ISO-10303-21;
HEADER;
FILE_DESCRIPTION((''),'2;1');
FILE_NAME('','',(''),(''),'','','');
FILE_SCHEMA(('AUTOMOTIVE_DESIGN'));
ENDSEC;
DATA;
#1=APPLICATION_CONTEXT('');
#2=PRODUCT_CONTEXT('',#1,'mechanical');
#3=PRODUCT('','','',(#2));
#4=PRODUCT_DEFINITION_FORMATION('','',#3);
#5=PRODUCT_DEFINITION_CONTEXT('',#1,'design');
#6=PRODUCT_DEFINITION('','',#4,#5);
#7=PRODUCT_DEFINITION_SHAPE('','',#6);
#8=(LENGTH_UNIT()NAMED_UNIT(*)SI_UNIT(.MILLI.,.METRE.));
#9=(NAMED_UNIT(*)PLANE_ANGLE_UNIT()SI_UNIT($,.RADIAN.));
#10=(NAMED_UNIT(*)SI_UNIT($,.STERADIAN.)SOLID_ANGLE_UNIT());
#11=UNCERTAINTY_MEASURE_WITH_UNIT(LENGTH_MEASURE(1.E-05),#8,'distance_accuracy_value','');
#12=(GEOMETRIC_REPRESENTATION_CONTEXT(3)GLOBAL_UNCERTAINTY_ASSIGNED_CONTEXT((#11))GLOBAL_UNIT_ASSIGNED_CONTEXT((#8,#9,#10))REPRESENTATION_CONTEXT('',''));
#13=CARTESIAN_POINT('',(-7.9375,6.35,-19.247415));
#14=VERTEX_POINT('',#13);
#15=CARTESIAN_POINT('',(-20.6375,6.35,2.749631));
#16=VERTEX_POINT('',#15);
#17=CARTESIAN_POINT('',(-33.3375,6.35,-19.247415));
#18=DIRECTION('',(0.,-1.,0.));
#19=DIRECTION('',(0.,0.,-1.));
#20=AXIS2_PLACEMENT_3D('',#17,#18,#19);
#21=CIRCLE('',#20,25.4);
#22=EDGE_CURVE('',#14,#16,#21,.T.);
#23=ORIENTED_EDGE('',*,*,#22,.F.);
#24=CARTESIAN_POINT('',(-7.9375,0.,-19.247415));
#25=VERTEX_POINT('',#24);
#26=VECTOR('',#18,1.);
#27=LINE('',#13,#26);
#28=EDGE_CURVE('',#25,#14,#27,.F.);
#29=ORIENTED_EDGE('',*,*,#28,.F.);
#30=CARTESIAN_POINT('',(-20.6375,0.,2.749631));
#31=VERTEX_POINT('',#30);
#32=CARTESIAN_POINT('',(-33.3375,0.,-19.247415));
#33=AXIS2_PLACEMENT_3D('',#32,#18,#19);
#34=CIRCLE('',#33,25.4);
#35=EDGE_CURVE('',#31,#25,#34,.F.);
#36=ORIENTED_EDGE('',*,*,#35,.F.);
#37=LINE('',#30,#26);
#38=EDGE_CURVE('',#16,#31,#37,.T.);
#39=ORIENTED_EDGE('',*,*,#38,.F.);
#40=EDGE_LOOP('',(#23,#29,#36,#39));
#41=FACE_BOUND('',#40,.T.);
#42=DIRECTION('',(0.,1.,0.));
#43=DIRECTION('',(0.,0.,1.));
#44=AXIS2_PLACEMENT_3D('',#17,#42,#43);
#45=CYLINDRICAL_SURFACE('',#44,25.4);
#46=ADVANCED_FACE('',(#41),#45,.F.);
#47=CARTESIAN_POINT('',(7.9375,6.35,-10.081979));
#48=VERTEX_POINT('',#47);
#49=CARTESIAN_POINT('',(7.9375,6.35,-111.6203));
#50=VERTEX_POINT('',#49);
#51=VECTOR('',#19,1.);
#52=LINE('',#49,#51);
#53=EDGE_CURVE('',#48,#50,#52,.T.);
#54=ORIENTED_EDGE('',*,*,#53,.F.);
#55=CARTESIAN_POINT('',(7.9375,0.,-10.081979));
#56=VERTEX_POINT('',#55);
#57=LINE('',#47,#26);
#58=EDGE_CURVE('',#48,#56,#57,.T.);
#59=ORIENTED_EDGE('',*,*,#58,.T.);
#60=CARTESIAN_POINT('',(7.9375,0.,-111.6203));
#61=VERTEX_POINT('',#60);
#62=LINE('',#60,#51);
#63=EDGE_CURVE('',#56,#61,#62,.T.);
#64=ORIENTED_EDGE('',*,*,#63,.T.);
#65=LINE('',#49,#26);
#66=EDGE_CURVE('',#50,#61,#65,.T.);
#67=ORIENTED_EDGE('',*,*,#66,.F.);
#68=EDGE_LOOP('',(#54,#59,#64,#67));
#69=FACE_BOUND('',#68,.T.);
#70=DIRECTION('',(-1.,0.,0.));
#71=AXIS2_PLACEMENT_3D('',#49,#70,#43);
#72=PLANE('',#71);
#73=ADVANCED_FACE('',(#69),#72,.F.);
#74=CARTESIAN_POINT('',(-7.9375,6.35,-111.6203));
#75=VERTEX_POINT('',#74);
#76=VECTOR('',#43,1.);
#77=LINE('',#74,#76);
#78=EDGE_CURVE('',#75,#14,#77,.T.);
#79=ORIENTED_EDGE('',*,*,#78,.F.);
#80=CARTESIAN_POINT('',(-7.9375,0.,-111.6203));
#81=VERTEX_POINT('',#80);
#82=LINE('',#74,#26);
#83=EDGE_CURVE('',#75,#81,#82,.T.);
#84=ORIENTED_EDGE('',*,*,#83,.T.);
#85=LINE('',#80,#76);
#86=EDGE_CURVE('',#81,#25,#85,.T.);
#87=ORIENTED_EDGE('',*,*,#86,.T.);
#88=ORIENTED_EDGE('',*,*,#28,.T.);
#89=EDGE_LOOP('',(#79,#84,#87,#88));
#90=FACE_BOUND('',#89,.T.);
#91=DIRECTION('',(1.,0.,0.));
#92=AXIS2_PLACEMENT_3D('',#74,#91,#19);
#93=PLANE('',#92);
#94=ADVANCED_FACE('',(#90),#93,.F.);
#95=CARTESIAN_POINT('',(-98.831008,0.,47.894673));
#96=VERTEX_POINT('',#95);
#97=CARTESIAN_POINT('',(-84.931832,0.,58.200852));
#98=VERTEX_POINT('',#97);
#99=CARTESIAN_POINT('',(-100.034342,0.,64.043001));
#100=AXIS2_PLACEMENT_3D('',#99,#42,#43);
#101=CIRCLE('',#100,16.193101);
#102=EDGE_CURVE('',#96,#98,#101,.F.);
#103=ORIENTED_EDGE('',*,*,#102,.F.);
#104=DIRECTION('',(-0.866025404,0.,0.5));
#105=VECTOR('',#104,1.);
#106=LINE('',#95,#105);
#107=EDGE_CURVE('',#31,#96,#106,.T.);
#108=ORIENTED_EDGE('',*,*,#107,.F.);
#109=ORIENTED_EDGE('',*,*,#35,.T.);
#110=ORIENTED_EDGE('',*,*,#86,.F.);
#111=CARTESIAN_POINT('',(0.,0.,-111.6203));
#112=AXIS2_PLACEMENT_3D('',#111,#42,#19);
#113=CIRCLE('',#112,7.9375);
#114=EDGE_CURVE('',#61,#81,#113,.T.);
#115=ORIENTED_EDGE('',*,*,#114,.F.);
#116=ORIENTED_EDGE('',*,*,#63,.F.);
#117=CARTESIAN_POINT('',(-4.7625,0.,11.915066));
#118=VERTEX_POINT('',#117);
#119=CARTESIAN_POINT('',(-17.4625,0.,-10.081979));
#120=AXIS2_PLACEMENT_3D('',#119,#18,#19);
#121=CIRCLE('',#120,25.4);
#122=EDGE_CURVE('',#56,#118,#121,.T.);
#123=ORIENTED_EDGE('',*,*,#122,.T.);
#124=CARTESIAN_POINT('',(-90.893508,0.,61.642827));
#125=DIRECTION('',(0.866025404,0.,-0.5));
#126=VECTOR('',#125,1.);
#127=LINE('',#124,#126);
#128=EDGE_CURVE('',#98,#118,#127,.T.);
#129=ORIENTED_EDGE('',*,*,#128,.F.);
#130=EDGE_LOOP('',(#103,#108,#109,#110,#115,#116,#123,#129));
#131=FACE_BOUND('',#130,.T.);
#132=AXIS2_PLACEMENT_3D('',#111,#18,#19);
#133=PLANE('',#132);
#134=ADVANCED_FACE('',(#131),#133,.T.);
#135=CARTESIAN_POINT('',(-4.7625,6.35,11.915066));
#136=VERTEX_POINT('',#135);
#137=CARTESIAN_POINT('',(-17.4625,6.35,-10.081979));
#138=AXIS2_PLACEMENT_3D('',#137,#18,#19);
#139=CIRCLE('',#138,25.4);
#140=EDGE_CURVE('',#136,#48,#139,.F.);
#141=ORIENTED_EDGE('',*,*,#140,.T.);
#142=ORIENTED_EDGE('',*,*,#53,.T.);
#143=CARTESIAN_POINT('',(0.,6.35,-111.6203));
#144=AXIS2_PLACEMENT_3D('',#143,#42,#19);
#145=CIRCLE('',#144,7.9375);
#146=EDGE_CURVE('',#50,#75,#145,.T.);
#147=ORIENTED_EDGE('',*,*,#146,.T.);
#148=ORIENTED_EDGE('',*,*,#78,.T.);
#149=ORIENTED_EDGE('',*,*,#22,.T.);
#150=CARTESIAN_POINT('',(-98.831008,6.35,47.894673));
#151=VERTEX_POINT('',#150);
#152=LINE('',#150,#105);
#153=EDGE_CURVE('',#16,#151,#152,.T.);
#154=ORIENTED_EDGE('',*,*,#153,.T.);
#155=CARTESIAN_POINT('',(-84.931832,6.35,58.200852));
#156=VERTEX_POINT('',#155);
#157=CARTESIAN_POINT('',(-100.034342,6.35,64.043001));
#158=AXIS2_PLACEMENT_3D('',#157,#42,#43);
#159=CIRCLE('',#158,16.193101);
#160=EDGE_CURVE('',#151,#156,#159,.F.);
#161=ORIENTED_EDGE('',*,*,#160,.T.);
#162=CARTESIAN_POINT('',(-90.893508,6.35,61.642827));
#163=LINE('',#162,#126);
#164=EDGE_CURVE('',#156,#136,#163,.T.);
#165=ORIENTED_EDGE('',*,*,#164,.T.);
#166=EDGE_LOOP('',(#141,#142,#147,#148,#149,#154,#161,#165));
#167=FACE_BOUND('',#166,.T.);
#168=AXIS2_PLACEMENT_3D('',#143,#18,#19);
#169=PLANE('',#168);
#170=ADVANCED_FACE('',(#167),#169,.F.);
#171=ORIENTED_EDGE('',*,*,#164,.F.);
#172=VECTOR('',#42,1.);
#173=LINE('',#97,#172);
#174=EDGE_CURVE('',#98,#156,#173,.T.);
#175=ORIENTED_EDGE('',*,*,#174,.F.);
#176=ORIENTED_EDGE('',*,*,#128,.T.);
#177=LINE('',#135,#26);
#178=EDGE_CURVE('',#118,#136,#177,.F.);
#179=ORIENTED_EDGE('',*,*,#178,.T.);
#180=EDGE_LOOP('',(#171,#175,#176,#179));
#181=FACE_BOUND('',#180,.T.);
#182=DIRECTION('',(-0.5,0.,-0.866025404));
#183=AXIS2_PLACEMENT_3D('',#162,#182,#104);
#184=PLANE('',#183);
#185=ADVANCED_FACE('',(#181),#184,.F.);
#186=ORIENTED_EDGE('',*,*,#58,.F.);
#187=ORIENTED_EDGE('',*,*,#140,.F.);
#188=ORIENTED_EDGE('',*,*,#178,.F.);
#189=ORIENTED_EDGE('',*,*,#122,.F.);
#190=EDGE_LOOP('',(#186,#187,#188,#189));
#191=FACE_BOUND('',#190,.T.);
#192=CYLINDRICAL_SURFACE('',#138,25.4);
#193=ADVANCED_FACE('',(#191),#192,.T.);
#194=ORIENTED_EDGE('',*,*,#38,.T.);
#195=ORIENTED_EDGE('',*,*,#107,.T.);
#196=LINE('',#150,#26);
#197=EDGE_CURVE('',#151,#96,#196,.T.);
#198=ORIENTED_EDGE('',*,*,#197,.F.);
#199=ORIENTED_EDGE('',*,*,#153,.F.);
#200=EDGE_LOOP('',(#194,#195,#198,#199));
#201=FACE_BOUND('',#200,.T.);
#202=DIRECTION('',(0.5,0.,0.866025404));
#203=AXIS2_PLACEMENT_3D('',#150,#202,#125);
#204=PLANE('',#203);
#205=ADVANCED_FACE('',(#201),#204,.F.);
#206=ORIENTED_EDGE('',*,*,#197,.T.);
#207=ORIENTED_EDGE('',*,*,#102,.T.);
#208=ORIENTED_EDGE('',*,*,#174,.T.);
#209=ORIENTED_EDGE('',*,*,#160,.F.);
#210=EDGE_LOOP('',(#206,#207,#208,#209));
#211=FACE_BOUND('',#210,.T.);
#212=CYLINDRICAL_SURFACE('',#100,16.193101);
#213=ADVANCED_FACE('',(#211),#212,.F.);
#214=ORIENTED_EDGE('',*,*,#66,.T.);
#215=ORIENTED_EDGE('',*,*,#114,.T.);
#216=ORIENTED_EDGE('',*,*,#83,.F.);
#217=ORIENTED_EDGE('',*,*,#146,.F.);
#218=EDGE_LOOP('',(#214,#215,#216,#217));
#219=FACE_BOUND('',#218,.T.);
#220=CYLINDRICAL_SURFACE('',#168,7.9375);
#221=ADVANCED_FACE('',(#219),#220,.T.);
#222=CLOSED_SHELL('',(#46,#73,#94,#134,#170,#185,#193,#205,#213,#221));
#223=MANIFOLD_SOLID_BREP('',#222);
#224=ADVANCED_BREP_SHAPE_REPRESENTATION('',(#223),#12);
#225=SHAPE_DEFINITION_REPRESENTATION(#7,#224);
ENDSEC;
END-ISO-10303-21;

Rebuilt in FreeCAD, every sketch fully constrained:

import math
import FreeCAD as App
import Part
import Sketcher
Q = App.Units.Quantity


def edges_at(feature, points):
    """Names of the edges that pass closest to the given points."""
    edges = feature.Shape.Edges
    near = lambda p: min(range(len(edges)), key=lambda i: edges[i].distToShape(Part.Vertex(*p))[0])
    return sorted({f"Edge{near(p) + 1}" for p in points})

doc = App.newDocument("Part")
body = doc.addObject("PartDesign::Body", "Body")

sketch1 = body.newObject("Sketcher::SketchObject", "Sketch")
sketch1.AttachmentSupport = (doc.getObject("XZ_Plane"), [""])
sketch1.MapMode = "FlatFace"
sketch1.addGeometry(Part.LineSegment(App.Vector(7.9375, 4.582718, 0), App.Vector(7.9375, -111.6203, 0)), False)
sketch1.addGeometry(Part.ArcOfCircle(Part.Circle(App.Vector(0, -111.6203, 0), App.Vector(0, 0, 1), 7.9375), math.radians(180), math.radians(360)), False)
sketch1.addGeometry(Part.LineSegment(App.Vector(-7.9375, -111.6203, 0), App.Vector(-7.9375, -4.582718, 0)), False)
sketch1.addGeometry(Part.LineSegment(App.Vector(-7.9375, -4.582718, 0), App.Vector(-98.831008, 47.894673, 0)), False)
sketch1.addGeometry(Part.ArcOfCircle(Part.Circle(App.Vector(-94.862258, 54.76875, 0), App.Vector(0, 0, 1), 7.9375), math.radians(60), math.radians(240)), False)
sketch1.addGeometry(Part.LineSegment(App.Vector(-90.893508, 61.642827, 0), App.Vector(7.9375, 4.582718, 0)), False)
sketch1.addConstraint(Sketcher.Constraint("Tangent", 0, 2, 1, 2))
sketch1.addConstraint(Sketcher.Constraint("Tangent", 1, 1, 2, 1))
sketch1.addConstraint(Sketcher.Constraint("Coincident", 2, 2, 3, 1))
sketch1.addConstraint(Sketcher.Constraint("Tangent", 3, 2, 4, 2))
sketch1.addConstraint(Sketcher.Constraint("Tangent", 4, 1, 5, 1))
sketch1.addConstraint(Sketcher.Constraint("Coincident", 5, 2, 0, 1))
sketch1.addConstraint(Sketcher.Constraint("Vertical", 0))
sketch1.addConstraint(Sketcher.Constraint("Vertical", 2))
sketch1.addConstraint(Sketcher.Constraint("Equal", 1, 4))
sketch1.addConstraint(Sketcher.Constraint("Symmetric", 2, 2, 5, 2, -1, 1))
sketch1.addConstraint(Sketcher.Constraint("Parallel", 3, 5))
sketch1.addConstraint(Sketcher.Constraint("Angle", 3, Q("150 deg")))
sketch1.addConstraint(Sketcher.Constraint("Radius", 1, Q("0.3125 in")))
sketch1.addConstraint(Sketcher.Constraint("DistanceY", -1, 1, 4, 3, Q("2.15625 in")))
sketch1.addConstraint(Sketcher.Constraint("DistanceY", 1, 3, -1, 1, Q("4.3945 in")))
pad1 = body.newObject("PartDesign::Pad", "Pad")
pad1.Profile = sketch1
pad1.Length = Q("0.25 in")
pad1.Reversed = True

sketch2 = body.newObject("Sketcher::SketchObject", "Sketch001")
sketch2.AttachmentSupport = (doc.getObject("XZ_Plane"), [""])
sketch2.MapMode = "FlatFace"
sketch2.AttachmentOffset = App.Placement(App.Vector(0, 0, -0.25 * 25.4), App.Rotation())
sketch2.addGeometry(Part.LineSegment(App.Vector(-90.893508, 61.642827, 0), App.Vector(-84.931832, 58.200852, 0)), False)
sketch2.addGeometry(Part.ArcOfCircle(Part.Circle(App.Vector(-100.034342, 64.043001, 0), App.Vector(0, 0, 1), 16.193101), math.radians(-85.738334), math.radians(-21.148116)), False)
sketch2.addGeometry(Part.ArcOfCircle(Part.Circle(App.Vector(-94.862258, 54.76875, 0), App.Vector(0, 0, 1), 7.9375), math.radians(60), math.radians(240)), False)
sketch2.addConstraint(Sketcher.Constraint("Coincident", 0, 2, 1, 2))
sketch2.addConstraint(Sketcher.Constraint("Coincident", 1, 1, 2, 2))
sketch2.addConstraint(Sketcher.Constraint("Tangent", 2, 1, 0, 1))
sketch2.addConstraint(Sketcher.Constraint("Angle", 0, Q("-30 deg")))
sketch2.addConstraint(Sketcher.Constraint("Radius", 2, Q("0.3125 in")))
sketch2.addConstraint(Sketcher.Constraint("Radius", 1, Q("16.193101 mm")))
sketch2.addConstraint(Sketcher.Constraint("DistanceY", -1, 1, 2, 3, Q("2.15625 in")))
sketch2.addConstraint(Sketcher.Constraint("DistanceX", 1, 1, 2, 3, Q("0.15625 in")))
sketch2.addConstraint(Sketcher.Constraint("DistanceY", -1, 1, 1, 3, Q("64.043001 mm")))
sketch2.addConstraint(Sketcher.Constraint("DistanceX", 1, 3, -1, 1, Q("100.034342 mm")))
pocket1 = body.newObject("PartDesign::Pocket", "Pocket")
pocket1.Profile = sketch2
pocket1.Type = "ThroughAll"
pocket1.Reversed = True
doc.recompute()

fillet = body.newObject("PartDesign::Fillet", "Fillet")
fillet.Base = (pocket1, edges_at(pocket1, [(7.938, 3.175, 4.583), (-7.938, 3.175, -4.583)]))
fillet.Radius = Q("1 in")

doc.recompute()
